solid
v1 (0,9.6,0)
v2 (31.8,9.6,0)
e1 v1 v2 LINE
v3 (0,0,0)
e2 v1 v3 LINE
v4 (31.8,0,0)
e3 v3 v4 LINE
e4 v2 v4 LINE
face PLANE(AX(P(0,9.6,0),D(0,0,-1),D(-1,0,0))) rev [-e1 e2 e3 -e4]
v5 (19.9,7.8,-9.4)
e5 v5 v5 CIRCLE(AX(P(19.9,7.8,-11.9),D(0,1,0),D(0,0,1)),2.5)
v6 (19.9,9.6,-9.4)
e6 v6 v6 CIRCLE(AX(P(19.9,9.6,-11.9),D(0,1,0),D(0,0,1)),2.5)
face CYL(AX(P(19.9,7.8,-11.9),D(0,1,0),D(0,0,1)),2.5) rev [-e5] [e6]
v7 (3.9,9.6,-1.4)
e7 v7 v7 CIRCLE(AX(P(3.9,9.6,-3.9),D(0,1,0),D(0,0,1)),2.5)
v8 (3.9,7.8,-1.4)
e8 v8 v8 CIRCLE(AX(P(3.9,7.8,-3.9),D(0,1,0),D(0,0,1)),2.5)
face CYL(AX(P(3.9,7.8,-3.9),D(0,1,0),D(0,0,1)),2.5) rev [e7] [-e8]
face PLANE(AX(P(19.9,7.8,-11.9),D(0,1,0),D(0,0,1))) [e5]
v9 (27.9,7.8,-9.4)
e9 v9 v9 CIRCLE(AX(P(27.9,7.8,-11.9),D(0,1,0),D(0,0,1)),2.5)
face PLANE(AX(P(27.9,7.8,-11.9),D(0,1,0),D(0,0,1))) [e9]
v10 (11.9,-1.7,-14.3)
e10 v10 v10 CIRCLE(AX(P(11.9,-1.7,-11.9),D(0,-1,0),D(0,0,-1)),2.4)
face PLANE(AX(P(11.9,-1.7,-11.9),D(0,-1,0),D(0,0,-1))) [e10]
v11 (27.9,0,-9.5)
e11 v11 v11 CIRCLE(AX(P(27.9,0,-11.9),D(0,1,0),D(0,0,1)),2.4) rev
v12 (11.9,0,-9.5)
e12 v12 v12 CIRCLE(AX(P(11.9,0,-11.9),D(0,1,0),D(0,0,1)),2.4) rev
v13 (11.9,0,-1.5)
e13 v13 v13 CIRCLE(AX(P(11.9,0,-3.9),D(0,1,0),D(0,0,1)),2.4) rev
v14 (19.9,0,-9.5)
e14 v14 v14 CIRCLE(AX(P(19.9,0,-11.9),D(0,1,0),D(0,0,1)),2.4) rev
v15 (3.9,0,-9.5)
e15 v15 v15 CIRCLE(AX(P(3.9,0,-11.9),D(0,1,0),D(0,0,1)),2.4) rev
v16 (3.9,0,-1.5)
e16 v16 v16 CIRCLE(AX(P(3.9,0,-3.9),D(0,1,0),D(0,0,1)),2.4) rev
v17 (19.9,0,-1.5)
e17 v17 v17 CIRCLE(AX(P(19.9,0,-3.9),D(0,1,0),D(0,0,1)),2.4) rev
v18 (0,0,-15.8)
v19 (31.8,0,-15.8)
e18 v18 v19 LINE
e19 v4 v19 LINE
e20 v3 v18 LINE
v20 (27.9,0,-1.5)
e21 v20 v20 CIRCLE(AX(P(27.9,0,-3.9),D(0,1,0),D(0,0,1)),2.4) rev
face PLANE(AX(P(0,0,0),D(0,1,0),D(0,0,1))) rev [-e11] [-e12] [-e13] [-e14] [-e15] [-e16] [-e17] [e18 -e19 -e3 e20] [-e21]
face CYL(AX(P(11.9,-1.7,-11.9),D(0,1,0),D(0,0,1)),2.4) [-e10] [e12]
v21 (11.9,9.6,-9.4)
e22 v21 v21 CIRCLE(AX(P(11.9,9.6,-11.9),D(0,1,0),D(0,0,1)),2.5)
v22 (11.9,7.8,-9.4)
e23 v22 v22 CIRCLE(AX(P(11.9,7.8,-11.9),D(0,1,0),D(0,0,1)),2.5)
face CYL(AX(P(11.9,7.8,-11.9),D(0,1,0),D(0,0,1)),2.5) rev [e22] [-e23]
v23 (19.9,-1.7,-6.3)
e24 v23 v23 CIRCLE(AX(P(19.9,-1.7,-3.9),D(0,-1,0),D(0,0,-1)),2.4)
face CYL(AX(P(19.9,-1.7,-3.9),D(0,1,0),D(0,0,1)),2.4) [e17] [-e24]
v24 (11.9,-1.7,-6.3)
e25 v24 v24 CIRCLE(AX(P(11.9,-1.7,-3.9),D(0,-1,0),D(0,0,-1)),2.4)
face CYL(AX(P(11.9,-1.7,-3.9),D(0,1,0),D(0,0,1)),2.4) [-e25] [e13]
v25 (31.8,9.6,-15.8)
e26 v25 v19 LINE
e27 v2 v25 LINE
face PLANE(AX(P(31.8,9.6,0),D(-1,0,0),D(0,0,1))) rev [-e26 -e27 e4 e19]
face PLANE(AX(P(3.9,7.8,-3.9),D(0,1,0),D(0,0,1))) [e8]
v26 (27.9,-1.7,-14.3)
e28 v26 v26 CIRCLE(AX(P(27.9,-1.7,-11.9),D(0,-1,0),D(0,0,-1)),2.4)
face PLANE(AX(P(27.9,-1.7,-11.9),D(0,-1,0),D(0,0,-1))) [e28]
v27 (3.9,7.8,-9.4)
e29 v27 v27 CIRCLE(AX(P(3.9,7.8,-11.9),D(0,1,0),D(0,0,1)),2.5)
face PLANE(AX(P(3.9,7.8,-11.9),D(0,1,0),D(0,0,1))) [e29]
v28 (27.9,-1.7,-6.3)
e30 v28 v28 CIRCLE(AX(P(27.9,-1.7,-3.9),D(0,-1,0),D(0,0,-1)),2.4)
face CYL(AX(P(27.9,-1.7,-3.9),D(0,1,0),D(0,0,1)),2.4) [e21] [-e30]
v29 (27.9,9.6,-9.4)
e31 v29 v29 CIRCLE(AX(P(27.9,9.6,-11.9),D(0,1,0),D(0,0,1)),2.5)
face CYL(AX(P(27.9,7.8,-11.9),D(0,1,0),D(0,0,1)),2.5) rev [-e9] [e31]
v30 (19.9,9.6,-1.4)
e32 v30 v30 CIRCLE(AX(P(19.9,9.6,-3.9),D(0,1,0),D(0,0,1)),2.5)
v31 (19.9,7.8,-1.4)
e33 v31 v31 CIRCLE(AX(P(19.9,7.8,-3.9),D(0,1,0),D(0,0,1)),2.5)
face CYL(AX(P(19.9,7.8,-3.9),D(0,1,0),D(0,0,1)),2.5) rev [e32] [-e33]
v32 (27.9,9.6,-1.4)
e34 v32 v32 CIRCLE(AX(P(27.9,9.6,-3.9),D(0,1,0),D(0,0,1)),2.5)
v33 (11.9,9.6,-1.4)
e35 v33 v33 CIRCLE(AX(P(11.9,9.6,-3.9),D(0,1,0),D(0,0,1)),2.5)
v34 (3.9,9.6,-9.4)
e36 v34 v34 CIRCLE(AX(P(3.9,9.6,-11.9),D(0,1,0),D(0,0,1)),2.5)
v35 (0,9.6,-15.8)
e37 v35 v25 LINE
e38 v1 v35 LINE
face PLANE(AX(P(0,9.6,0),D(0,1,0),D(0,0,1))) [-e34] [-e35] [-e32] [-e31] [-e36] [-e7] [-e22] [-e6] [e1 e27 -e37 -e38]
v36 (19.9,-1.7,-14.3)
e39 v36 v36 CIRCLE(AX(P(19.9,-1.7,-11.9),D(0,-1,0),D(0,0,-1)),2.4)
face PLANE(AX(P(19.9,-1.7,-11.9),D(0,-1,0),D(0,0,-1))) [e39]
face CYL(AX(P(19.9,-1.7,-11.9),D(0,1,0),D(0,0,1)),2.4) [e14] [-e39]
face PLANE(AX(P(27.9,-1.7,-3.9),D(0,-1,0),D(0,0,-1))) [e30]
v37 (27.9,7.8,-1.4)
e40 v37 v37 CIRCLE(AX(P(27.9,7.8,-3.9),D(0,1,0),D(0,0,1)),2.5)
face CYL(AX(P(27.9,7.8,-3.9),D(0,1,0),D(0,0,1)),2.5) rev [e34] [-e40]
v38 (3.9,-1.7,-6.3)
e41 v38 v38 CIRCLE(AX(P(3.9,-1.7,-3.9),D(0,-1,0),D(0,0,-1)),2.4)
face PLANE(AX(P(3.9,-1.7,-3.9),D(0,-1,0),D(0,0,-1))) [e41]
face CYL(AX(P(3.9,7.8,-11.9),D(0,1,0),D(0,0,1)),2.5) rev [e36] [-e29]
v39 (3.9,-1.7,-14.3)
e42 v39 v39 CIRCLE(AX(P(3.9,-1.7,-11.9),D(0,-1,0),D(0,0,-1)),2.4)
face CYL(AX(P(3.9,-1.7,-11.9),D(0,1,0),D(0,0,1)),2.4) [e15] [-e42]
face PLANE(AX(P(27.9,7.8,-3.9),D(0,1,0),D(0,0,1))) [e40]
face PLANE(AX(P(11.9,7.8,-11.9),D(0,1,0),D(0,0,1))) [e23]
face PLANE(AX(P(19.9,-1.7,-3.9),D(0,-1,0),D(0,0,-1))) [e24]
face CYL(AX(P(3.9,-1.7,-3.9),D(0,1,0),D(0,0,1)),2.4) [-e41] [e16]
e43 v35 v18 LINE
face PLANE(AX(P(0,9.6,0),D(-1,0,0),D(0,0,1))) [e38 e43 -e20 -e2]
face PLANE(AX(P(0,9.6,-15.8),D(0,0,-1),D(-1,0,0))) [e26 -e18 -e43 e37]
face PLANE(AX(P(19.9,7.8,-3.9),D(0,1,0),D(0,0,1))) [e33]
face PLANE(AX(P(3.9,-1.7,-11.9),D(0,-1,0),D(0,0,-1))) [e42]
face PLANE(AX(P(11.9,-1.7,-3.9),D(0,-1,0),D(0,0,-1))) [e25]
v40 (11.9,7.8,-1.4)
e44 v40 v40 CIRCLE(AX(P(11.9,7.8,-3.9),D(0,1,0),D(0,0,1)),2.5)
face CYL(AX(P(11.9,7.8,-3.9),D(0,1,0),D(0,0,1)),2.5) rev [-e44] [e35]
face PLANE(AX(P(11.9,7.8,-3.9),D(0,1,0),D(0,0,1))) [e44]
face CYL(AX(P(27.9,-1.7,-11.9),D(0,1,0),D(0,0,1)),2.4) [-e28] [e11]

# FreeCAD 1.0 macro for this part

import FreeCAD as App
import Part
import Sketcher

doc = App.newDocument("Part")
params = doc.addObject("Spreadsheet::Sheet", "Params")
for row, (alias, value) in enumerate([
    ("sketch1_width", "31.8 mm"),
    ("sketch1_height", "15.8 mm"),
    ("pad1_length", "9.6 mm"),
    ("sketch2_diameter", "4.8 mm"),
    ("pad2_length", "1.7 mm"),
    ("sketch3_diameter", "5 mm"),
    ("pocket1_length", "1.8 mm"),
], start=1):
    params.set(f"A{row}", alias)
    params.set(f"B{row}", "=" + value)
    params.setAlias(f"B{row}", alias)

body = doc.addObject("PartDesign::Body", "Body")

sketch1 = body.newObject("Sketcher::SketchObject", "Sketch")
sketch1.AttachmentSupport = (doc.getObject("XZ_Plane"), [""])
sketch1.MapMode = "FlatFace"
sketch1.addGeometry([
    Part.LineSegment(App.Vector(0, -16, 0), App.Vector(0, 0, 0)),
    Part.LineSegment(App.Vector(0, 0, 0), App.Vector(32, 0, 0)),
    Part.LineSegment(App.Vector(32, 0, 0), App.Vector(32, -16, 0)),
    Part.LineSegment(App.Vector(32, -16, 0), App.Vector(0, -16, 0)),
], False)
sketch1.addConstraint([
    Sketcher.Constraint("Coincident", 0, 2, 1, 1),
    Sketcher.Constraint("Coincident", 1, 2, 2, 1),
    Sketcher.Constraint("Coincident", 2, 2, 3, 1),
    Sketcher.Constraint("Coincident", 3, 2, 0, 1),
    Sketcher.Constraint("Vertical", 0),
    Sketcher.Constraint("Horizontal", 1),
    Sketcher.Constraint("Vertical", 2),
    Sketcher.Constraint("Horizontal", 3),
    Sketcher.Constraint("Coincident", 0, 2, -1, 1),
    Sketcher.Constraint("DistanceX", 1, 1, 1, 2, 31.8),
    Sketcher.Constraint("DistanceY", 0, 1, 0, 2, 15.8),
])
sketch1.setExpression("Constraints[9]", "Params.sketch1_width")
sketch1.setExpression("Constraints[10]", "Params.sketch1_height")
pad1 = body.newObject("PartDesign::Pad", "Pad")
pad1.Profile = sketch1
pad1.setExpression("Length", "Params.pad1_length")
pad1.Reversed = True

sketch2 = body.newObject("Sketcher::SketchObject", "Sketch001")
sketch2.AttachmentSupport = (doc.getObject("XZ_Plane"), [""])
sketch2.MapMode = "FlatFace"
sketch2.addGeometry([
    Part.Circle(App.Vector(27.9, -3.9, 0), App.Vector(0, 0, 1), 2.4),
    Part.Circle(App.Vector(19.9, -3.9, 0), App.Vector(0, 0, 1), 2.4),
    Part.Circle(App.Vector(11.9, -3.9, 0), App.Vector(0, 0, 1), 2.4),
    Part.Circle(App.Vector(3.9, -3.9, 0), App.Vector(0, 0, 1), 2.4),
    Part.Circle(App.Vector(19.9, -11.9, 0), App.Vector(0, 0, 1), 2.4),
    Part.Circle(App.Vector(11.9, -11.9, 0), App.Vector(0, 0, 1), 2.4),
    Part.Circle(App.Vector(3.9, -11.9, 0), App.Vector(0, 0, 1), 2.4),
    Part.Circle(App.Vector(27.9, -11.9, 0), App.Vector(0, 0, 1), 2.4),
], False)
sketch2.addConstraint([
    Sketcher.Constraint("Equal", 0, 1),
    Sketcher.Constraint("Equal", 1, 2),
    Sketcher.Constraint("Equal", 2, 3),
    Sketcher.Constraint("Equal", 3, 4),
    Sketcher.Constraint("Equal", 4, 5),
    Sketcher.Constraint("Equal", 5, 6),
    Sketcher.Constraint("Equal", 6, 7),
    Sketcher.Constraint("Horizontal", 0, 3, 1, 3),
    Sketcher.Constraint("Horizontal", 1, 3, 2, 3),
    Sketcher.Constraint("Horizontal", 2, 3, 3, 3),
    Sketcher.Constraint("Horizontal", 4, 3, 5, 3),
    Sketcher.Constraint("Horizontal", 5, 3, 6, 3),
    Sketcher.Constraint("Horizontal", 6, 3, 7, 3),
    Sketcher.Constraint("Vertical", 1, 3, 4, 3),
    Sketcher.Constraint("Vertical", 2, 3, 5, 3),
    Sketcher.Constraint("Vertical", 3, 3, 6, 3),
    Sketcher.Constraint("Vertical", 0, 3, 7, 3),
    Sketcher.Constraint("Diameter", 0, 4.8),
    Sketcher.Constraint("DistanceX", 1, 3, 0, 3, 8.0),
    Sketcher.Constraint("DistanceX", 2, 3, 1, 3, 8.0),
    Sketcher.Constraint("DistanceX", 3, 3, 2, 3, 8.0),
    Sketcher.Constraint("DistanceY", 4, 3, 1, 3, 8.0),
    Sketcher.Constraint("DistanceX", -1, 1, 0, 3, 27.9),
    Sketcher.Constraint("DistanceY", 0, 3, -1, 1, 3.9),
])
sketch2.setExpression("Constraints[17]", "Params.sketch2_diameter")
pad2 = body.newObject("PartDesign::Pad", "Pad001")
pad2.Profile = sketch2
pad2.setExpression("Length", "Params.pad2_length")

sketch3 = body.newObject("Sketcher::SketchObject", "Sketch002")
sketch3.AttachmentSupport = (doc.getObject("XZ_Plane"), [""])
sketch3.MapMode = "FlatFace"
sketch3.AttachmentOffset = App.Placement(App.Vector(0, 0, -9.6), App.Rotation())
sketch3.addGeometry([
    Part.Circle(App.Vector(27.9, -3.9, 0), App.Vector(0, 0, 1), 2.5),
    Part.Circle(App.Vector(19.9, -3.9, 0), App.Vector(0, 0, 1), 2.5),
    Part.Circle(App.Vector(11.9, -3.9, 0), App.Vector(0, 0, 1), 2.5),
    Part.Circle(App.Vector(3.9, -3.9, 0), App.Vector(0, 0, 1), 2.5),
    Part.Circle(App.Vector(19.9, -11.9, 0), App.Vector(0, 0, 1), 2.5),
    Part.Circle(App.Vector(11.9, -11.9, 0), App.Vector(0, 0, 1), 2.5),
    Part.Circle(App.Vector(3.9, -11.9, 0), App.Vector(0, 0, 1), 2.5),
    Part.Circle(App.Vector(27.9, -11.9, 0), App.Vector(0, 0, 1), 2.5),
], False)
sketch3.addConstraint([
    Sketcher.Constraint("Equal", 0, 1),
    Sketcher.Constraint("Equal", 1, 2),
    Sketcher.Constraint("Equal", 2, 3),
    Sketcher.Constraint("Equal", 3, 4),
    Sketcher.Constraint("Equal", 4, 5),
    Sketcher.Constraint("Equal", 5, 6),
    Sketcher.Constraint("Equal", 6, 7),
    Sketcher.Constraint("Horizontal", 0, 3, 1, 3),
    Sketcher.Constraint("Horizontal", 1, 3, 2, 3),
    Sketcher.Constraint("Horizontal", 2, 3, 3, 3),
    Sketcher.Constraint("Horizontal", 4, 3, 5, 3),
    Sketcher.Constraint("Horizontal", 5, 3, 6, 3),
    Sketcher.Constraint("Horizontal", 6, 3, 7, 3),
    Sketcher.Constraint("Vertical", 1, 3, 4, 3),
    Sketcher.Constraint("Vertical", 2, 3, 5, 3),
    Sketcher.Constraint("Vertical", 3, 3, 6, 3),
    Sketcher.Constraint("Vertical", 0, 3, 7, 3),
    Sketcher.Constraint("Diameter", 0, 5.0),
    Sketcher.Constraint("DistanceX", 1, 3, 0, 3, 8.0),
    Sketcher.Constraint("DistanceX", 2, 3, 1, 3, 8.0),
    Sketcher.Constraint("DistanceX", 3, 3, 2, 3, 8.0),
    Sketcher.Constraint("DistanceY", 4, 3, 1, 3, 8.0),
    Sketcher.Constraint("DistanceX", -1, 1, 0, 3, 27.9),
    Sketcher.Constraint("DistanceY", 0, 3, -1, 1, 3.9),
])
sketch3.setExpression("Constraints[17]", "Params.sketch3_diameter")
pocket1 = body.newObject("PartDesign::Pocket", "Pocket")
pocket1.Profile = sketch3
pocket1.setExpression("Length", "Params.pocket1_length")
pocket1.Reversed = True

doc.recompute()
